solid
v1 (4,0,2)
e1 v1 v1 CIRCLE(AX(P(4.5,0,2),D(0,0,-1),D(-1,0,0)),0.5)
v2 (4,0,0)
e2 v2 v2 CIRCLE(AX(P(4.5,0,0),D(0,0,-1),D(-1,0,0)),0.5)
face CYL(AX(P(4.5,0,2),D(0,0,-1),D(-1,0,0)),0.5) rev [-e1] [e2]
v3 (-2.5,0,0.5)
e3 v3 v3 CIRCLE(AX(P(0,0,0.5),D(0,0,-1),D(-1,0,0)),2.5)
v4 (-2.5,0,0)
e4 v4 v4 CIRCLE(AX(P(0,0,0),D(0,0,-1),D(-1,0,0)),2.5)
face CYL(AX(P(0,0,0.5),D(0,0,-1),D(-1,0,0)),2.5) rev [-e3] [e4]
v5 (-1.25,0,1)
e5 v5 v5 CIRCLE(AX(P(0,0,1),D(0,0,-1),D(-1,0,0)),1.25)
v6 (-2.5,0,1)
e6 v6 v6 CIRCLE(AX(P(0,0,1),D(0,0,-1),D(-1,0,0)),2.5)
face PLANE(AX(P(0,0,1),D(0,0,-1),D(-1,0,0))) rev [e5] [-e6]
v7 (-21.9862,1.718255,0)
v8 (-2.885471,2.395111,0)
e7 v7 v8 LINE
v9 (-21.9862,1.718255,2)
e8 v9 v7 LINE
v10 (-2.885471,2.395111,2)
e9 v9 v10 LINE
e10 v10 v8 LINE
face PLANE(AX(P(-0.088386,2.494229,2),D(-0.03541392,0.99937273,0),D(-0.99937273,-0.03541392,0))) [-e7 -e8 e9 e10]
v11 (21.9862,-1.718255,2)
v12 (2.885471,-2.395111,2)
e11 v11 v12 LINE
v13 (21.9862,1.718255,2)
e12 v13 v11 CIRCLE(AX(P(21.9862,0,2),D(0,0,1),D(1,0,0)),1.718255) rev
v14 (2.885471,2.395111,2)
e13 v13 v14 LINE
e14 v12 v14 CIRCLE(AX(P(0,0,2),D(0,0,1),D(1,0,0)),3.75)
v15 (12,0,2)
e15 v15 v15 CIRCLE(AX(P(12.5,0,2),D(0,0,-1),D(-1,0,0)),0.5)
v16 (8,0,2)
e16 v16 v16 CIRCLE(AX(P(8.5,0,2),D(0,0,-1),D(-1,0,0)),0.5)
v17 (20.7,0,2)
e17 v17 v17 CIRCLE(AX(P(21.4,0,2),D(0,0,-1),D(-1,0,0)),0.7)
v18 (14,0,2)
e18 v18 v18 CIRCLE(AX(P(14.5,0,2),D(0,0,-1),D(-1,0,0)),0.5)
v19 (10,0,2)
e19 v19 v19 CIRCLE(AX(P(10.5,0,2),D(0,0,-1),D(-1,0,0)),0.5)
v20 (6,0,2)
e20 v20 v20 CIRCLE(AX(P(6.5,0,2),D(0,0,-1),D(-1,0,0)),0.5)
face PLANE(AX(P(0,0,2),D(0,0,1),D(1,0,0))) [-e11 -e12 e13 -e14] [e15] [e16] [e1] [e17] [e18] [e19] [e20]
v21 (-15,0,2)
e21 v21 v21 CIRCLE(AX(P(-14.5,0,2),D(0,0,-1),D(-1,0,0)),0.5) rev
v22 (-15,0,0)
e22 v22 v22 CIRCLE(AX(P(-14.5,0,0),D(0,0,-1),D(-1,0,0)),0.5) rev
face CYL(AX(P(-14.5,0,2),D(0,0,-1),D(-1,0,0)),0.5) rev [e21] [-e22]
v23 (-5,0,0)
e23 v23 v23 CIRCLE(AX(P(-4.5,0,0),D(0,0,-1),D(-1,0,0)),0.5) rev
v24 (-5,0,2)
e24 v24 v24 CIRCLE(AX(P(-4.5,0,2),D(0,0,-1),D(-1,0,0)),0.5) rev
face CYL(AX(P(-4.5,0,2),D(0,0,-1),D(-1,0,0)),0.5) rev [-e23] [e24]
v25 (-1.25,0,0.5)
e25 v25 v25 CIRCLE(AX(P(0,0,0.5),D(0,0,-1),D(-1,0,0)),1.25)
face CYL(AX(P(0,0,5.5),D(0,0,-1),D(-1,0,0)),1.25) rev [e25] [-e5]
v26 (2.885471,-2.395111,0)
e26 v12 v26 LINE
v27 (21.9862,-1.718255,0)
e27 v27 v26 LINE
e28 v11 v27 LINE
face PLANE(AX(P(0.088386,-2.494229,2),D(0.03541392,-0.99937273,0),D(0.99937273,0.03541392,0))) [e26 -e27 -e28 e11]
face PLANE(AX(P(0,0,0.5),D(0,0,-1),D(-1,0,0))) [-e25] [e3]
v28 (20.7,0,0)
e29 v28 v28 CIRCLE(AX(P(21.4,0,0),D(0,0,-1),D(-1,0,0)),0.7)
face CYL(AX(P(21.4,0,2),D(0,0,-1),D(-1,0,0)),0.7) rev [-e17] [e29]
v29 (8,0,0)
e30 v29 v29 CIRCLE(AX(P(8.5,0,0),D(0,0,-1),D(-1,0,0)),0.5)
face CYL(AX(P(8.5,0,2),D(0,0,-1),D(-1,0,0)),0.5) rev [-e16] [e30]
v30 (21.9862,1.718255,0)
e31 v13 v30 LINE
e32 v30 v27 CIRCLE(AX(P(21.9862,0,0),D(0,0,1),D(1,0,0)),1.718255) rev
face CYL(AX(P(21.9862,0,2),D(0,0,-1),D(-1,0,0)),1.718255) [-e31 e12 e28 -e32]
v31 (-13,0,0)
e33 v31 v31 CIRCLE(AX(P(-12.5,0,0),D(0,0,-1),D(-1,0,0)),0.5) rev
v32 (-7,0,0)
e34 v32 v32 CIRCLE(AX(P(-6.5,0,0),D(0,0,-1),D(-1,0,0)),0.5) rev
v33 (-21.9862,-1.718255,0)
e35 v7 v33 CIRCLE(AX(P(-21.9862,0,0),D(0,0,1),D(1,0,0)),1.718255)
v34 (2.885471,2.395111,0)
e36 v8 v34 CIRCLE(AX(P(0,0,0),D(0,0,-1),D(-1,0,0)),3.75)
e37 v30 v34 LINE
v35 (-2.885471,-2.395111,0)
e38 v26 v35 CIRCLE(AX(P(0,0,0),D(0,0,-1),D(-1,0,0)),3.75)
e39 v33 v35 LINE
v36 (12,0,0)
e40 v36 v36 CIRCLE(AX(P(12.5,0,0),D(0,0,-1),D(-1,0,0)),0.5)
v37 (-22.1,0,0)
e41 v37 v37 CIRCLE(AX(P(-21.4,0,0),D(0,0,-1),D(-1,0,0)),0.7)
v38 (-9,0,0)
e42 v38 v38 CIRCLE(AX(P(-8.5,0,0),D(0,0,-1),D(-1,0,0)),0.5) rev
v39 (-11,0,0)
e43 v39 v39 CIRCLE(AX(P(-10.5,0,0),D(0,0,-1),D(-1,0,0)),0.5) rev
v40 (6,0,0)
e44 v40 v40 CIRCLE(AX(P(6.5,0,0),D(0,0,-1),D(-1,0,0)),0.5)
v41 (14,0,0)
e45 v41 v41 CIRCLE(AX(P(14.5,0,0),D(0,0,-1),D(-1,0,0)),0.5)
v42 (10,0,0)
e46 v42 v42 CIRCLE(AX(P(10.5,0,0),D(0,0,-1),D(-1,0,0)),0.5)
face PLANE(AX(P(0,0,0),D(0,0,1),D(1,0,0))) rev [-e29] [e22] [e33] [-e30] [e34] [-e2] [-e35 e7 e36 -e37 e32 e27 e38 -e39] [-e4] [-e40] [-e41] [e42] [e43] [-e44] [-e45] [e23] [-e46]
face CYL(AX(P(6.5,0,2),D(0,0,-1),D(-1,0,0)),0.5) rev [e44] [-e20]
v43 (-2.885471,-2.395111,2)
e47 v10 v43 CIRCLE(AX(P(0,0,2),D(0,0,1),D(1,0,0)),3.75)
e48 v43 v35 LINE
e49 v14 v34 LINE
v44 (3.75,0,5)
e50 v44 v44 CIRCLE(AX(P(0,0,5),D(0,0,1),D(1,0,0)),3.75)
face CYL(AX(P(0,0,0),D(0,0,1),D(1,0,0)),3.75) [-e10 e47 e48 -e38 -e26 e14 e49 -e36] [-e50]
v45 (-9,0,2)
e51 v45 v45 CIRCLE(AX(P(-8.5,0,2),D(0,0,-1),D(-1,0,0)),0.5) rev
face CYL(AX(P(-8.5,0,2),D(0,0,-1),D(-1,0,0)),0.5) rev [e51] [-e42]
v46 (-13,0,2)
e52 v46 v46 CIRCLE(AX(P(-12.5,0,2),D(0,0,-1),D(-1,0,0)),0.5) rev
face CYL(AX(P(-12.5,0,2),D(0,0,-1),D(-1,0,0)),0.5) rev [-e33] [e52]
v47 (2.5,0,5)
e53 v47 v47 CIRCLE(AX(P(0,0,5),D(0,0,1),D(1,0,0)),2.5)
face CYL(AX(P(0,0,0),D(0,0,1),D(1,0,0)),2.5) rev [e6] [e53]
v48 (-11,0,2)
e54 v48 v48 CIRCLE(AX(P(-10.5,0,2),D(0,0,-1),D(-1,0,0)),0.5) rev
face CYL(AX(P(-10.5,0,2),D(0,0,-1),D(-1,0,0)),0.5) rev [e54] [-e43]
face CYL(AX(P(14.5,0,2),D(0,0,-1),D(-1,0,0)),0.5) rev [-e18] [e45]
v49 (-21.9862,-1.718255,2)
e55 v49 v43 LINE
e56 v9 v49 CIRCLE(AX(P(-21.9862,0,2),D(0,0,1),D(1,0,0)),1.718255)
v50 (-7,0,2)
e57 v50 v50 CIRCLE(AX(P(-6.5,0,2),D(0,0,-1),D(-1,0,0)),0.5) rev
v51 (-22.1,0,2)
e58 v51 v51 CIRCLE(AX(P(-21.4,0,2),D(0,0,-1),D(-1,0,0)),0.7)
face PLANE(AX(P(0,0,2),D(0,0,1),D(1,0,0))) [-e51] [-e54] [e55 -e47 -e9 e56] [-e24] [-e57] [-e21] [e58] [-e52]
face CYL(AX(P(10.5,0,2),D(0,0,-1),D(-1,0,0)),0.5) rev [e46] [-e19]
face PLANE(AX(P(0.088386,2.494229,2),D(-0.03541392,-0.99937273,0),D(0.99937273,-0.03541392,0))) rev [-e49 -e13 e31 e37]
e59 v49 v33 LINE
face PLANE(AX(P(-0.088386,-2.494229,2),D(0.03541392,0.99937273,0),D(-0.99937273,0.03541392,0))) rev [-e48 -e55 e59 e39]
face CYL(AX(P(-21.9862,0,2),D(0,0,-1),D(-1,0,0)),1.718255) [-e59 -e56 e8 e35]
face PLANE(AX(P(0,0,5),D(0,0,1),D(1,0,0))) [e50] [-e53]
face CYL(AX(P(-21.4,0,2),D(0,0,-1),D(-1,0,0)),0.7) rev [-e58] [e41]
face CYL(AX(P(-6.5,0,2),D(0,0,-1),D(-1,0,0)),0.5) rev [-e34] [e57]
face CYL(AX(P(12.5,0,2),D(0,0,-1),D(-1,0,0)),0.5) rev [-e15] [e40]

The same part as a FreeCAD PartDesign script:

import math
import FreeCAD as App
import Part
import Sketcher

V = App.Vector

doc = App.newDocument("Part")
body = doc.addObject("PartDesign::Body", "Body")

# Sketch on XY plane
sketch1 = doc.addObject("Sketcher::SketchObject", "Sketch")
body.addObject(sketch1)
sketch1.AttachmentSupport = (doc.XY_Plane, [""])
sketch1.MapMode = "FlatFace"
sketch1.addGeometry([
    Part.ArcOfCircle(Part.Circle(V(0, 0, 0), V(0, 0, 1), 3.75), math.radians(180), math.radians(219.694681)),  # 0
    Part.ArcOfCircle(Part.Circle(V(0, 0, 0), V(0, 0, 1), 3.75), math.radians(140.305319), math.radians(180)),  # 1
    Part.LineSegment(V(-2.885471, 2.395111, 0), V(-21.9862, 1.718255, 0)),  # 2
    Part.ArcOfCircle(Part.Circle(V(-21.9862, 0, 0), V(0, 0, 1), 1.718255), math.radians(90), math.radians(270)),  # 3
    Part.LineSegment(V(-21.9862, -1.718255, 0), V(-2.885471, -2.395111, 0)),  # 4
], False)
sketch1.addConstraint([
    Sketcher.Constraint("Tangent", 0, 1, 1, 2),
    Sketcher.Constraint("Coincident", 1, 1, 2, 1),
    Sketcher.Constraint("Coincident", 2, 2, 3, 1),
    Sketcher.Constraint("Coincident", 3, 2, 4, 1),
    Sketcher.Constraint("Coincident", 4, 2, 0, 2),
    Sketcher.Constraint("Coincident", 0, 3, -1, 1),
    Sketcher.Constraint("Equal", 0, 1),
    Sketcher.Constraint("Symmetric", 2, 2, 3, 2, -1),
    Sketcher.Constraint("PointOnObject", 0, 1, -1),
    Sketcher.Constraint("Vertical", 3, 3, 2, 2),
    Sketcher.Constraint("Vertical", 1, 1, 4, 2),
    Sketcher.Constraint("Radius", 0, 3.75),
    Sketcher.Constraint("Radius", 3, 1.718255),
    Sketcher.Constraint("DistanceX", 3, 3, -1, 1, 21.9862),
    Sketcher.Constraint("Distance", 2, 19.112718),
])
pad1 = doc.addObject("PartDesign::Pad", "Pad")
body.addObject(pad1)
pad1.Profile = sketch1
pad1.Length = 2
body2 = doc.addObject("PartDesign::Body", "Body001")

# Sketch on XY plane
sketch2 = doc.addObject("Sketcher::SketchObject", "Sketch001")
body2.addObject(sketch2)
sketch2.AttachmentSupport = (doc.getObject("XY_Plane001"), [""])
sketch2.MapMode = "FlatFace"
sketch2.addGeometry([
    Part.LineSegment(V(21.9862, 1.718255, 0), V(2.885471, 2.395111, 0)),
    Part.ArcOfCircle(Part.Circle(V(0, 0, 0), V(0, 0, 1), 3.75), math.radians(-39.694681), math.radians(39.694681)),
    Part.LineSegment(V(2.885471, -2.395111, 0), V(21.9862, -1.718255, 0)),
    Part.ArcOfCircle(Part.Circle(V(21.9862, 0, 0), V(0, 0, 1), 1.718255), math.radians(-90), math.radians(90)),
], False)
sketch2.addConstraint([
    Sketcher.Constraint("Coincident", 0, 2, 1, 2),
    Sketcher.Constraint("Coincident", 1, 1, 2, 1),
    Sketcher.Constraint("Coincident", 2, 2, 3, 1),
    Sketcher.Constraint("Coincident", 3, 2, 0, 1),
    Sketcher.Constraint("Coincident", 1, 3, -1, 1),
    Sketcher.Constraint("Symmetric", 2, 2, 3, 2, -1),
    Sketcher.Constraint("Vertical", 0, 2, 1, 1),
    Sketcher.Constraint("Vertical", 3, 3, 2, 2),
    Sketcher.Constraint("Radius", 1, 3.75),
    Sketcher.Constraint("Radius", 3, 1.718255),
    Sketcher.Constraint("DistanceX", -1, 1, 3, 3, 21.9862),
    Sketcher.Constraint("Distance", 0, 19.112718),
])
pad2 = doc.addObject("PartDesign::Pad", "Pad001")
body2.addObject(pad2)
pad2.Profile = sketch2
pad2.Length = 2
body3 = doc.addObject("PartDesign::Body", "Body002")

# Sketch on XY plane
sketch3 = doc.addObject("Sketcher::SketchObject", "Sketch002")
body3.addObject(sketch3)
sketch3.AttachmentSupport = (doc.getObject("XY_Plane002"), [""])
sketch3.MapMode = "FlatFace"
sketch3.AttachmentOffset = App.Placement(V(0, 0, 2), App.Rotation())
sketch3.addGeometry([
    Part.Circle(V(0, 0, 0), V(0, 0, 1), 3.75),
    Part.Circle(V(0, 0, 0), V(0, 0, 1), 2.5),
], False)
sketch3.addConstraint([
    Sketcher.Constraint("Coincident", 0, 3, -1, 1),
    Sketcher.Constraint("Coincident", 1, 3, -1, 1),
    Sketcher.Constraint("Diameter", 1, 5.0),
    Sketcher.Constraint("Diameter", 0, 7.5),
])
pad3 = doc.addObject("PartDesign::Pad", "Pad002")
body3.addObject(pad3)
pad3.Profile = sketch3
pad3.Length = 3
body.AllowCompound = True
doc.recompute()

boolean = doc.addObject("PartDesign::Boolean", "Boolean")
body.addObject(boolean)
boolean.Type = "Fuse"
boolean.addObjects([body2])
doc.recompute()

boolean2 = doc.addObject("PartDesign::Boolean", "Boolean001")
body.addObject(boolean2)
boolean2.Type = "Fuse"
boolean2.addObjects([body3])

# Sketch on XY plane
sketch4 = doc.addObject("Sketcher::SketchObject", "Sketch003")
body.addObject(sketch4)
sketch4.AttachmentSupport = (doc.XY_Plane, [""])
sketch4.MapMode = "FlatFace"
sketch4.addGeometry([
    Part.Circle(V(0, 0, 0), V(0, 0, 1), 3.75),
    Part.Circle(V(0, 0, 0), V(0, 0, 1), 2.5),
], False)
sketch4.addConstraint([
    Sketcher.Constraint("Coincident", 0, 3, -1, 1),
    Sketcher.Constraint("Coincident", 1, 3, -1, 1),
    Sketcher.Constraint("Diameter", 1, 5.0),
    Sketcher.Constraint("Diameter", 0, 7.5),
])
pad4 = doc.addObject("PartDesign::Pad", "Pad003")
body.addObject(pad4)
pad4.Profile = sketch4
pad4.Length = 2

# Sketch on XY plane
sketch5 = doc.addObject("Sketcher::SketchObject", "Sketch004")
body.addObject(sketch5)
sketch5.AttachmentSupport = (doc.XY_Plane, [""])
sketch5.MapMode = "FlatFace"
sketch5.addGeometry([
    Part.Circle(V(14.5, 0, 0), V(0, 0, 1), 0.5),  # 0
    Part.Circle(V(4.5, 0, 0), V(0, 0, 1), 0.5),  # 1
    Part.Circle(V(6.5, 0, 0), V(0, 0, 1), 0.5),  # 2
    Part.Circle(V(8.5, 0, 0), V(0, 0, 1), 0.5),  # 3
    Part.Circle(V(10.5, 0, 0), V(0, 0, 1), 0.5),  # 4
    Part.Circle(V(12.5, 0, 0), V(0, 0, 1), 0.5),  # 5
    Part.Circle(V(-4.5, 0, 0), V(0, 0, 1), 0.5),  # 6
    Part.Circle(V(-6.5, 0, 0), V(0, 0, 1), 0.5),  # 7
    Part.Circle(V(-8.5, 0, 0), V(0, 0, 1), 0.5),  # 8
    Part.Circle(V(-10.5, 0, 0), V(0, 0, 1), 0.5),  # 9
    Part.Circle(V(-12.5, 0, 0), V(0, 0, 1), 0.5),  # 10
    Part.Circle(V(-14.5, 0, 0), V(0, 0, 1), 0.5),  # 11
], False)
sketch5.addConstraint([
    Sketcher.Constraint("Equal", 0, 1),
    Sketcher.Constraint("Equal", 1, 2),
    Sketcher.Constraint("Equal", 2, 3),
    Sketcher.Constraint("Equal", 3, 4),
    Sketcher.Constraint("Equal", 4, 5),
    Sketcher.Constraint("Equal", 5, 6),
    Sketcher.Constraint("Equal", 6, 7),
    Sketcher.Constraint("Equal", 7, 8),
    Sketcher.Constraint("Equal", 8, 9),
    Sketcher.Constraint("Equal", 9, 10),
    Sketcher.Constraint("Equal", 10, 11),
    Sketcher.Constraint("Symmetric", 1, 3, 6, 3, -1, 1),
    Sketcher.Constraint("Symmetric", 2, 3, 7, 3, -1, 1),
    Sketcher.Constraint("Symmetric", 3, 3, 8, 3, -1, 1),
    Sketcher.Constraint("Symmetric", 4, 3, 9, 3, -1, 1),
    Sketcher.Constraint("Symmetric", 5, 3, 10, 3, -1, 1),
    Sketcher.Constraint("Symmetric", 0, 3, 11, 3, -1, 1),
    Sketcher.Constraint("PointOnObject", 0, 3, -1),
    Sketcher.Constraint("PointOnObject", 1, 3, -1),
    Sketcher.Constraint("PointOnObject", 2, 3, -1),
    Sketcher.Constraint("PointOnObject", 3, 3, -1),
    Sketcher.Constraint("PointOnObject", 4, 3, -1),
    Sketcher.Constraint("PointOnObject", 5, 3, -1),
    Sketcher.Constraint("Diameter", 0, 1.0),
    Sketcher.Constraint("DistanceX", 1, 3, 0, 3, 10.0),
    Sketcher.Constraint("DistanceX", 1, 3, 2, 3, 2.0),
    Sketcher.Constraint("DistanceX", 2, 3, 3, 3, 2.0),
    Sketcher.Constraint("DistanceX", 3, 3, 4, 3, 2.0),
    Sketcher.Constraint("DistanceX", 5, 3, 0, 3, 2.0),
    Sketcher.Constraint("DistanceX", 6, 3, 1, 3, 9.0),
])
pocket1 = doc.addObject("PartDesign::Pocket", "Pocket")
body.addObject(pocket1)
pocket1.Profile = sketch5
pocket1.Length = 2
pocket1.Reversed = True

# Sketch on XY plane
sketch6 = doc.addObject("Sketcher::SketchObject", "Sketch005")
body.addObject(sketch6)
sketch6.AttachmentSupport = (doc.XY_Plane, [""])
sketch6.MapMode = "FlatFace"
sketch6.addGeometry(Part.Circle(V(0, 0, 0), V(0, 0, 1), 2.5), False)
sketch6.addConstraint([
    Sketcher.Constraint("Coincident", 0, 3, -1, 1),
    Sketcher.Constraint("Diameter", 0, 5.0),
])
pad5 = doc.addObject("PartDesign::Pad", "Pad004")
body.addObject(pad5)
pad5.Profile = sketch6
pad5.Length = 1

# Sketch on XY plane
sketch7 = doc.addObject("Sketcher::SketchObject", "Sketch006")
body.addObject(sketch7)
sketch7.AttachmentSupport = (doc.XY_Plane, [""])
sketch7.MapMode = "FlatFace"
sketch7.addGeometry(Part.Circle(V(0, 0, 0), V(0, 0, 1), 2.5), False)
sketch7.addConstraint([
    Sketcher.Constraint("Coincident", 0, 3, -1, 1),
    Sketcher.Constraint("Diameter", 0, 5.0),
])
pocket2 = doc.addObject("PartDesign::Pocket", "Pocket001")
body.addObject(pocket2)
pocket2.Profile = sketch7
pocket2.Length = 0.5
pocket2.Reversed = True

# Sketch on XY plane
sketch8 = doc.addObject("Sketcher::SketchObject", "Sketch007")
body.addObject(sketch8)
sketch8.AttachmentSupport = (doc.XY_Plane, [""])
sketch8.MapMode = "FlatFace"
sketch8.AttachmentOffset = App.Placement(V(0, 0, 0.5), App.Rotation())
sketch8.addGeometry(Part.Circle(V(0, 0, 0), V(0, 0, 1), 1.25), False)
sketch8.addConstraint([
    Sketcher.Constraint("Coincident", 0, 3, -1, 1),
    Sketcher.Constraint("Diameter", 0, 2.5),
])
pocket3 = doc.addObject("PartDesign::Pocket", "Pocket002")
body.addObject(pocket3)
pocket3.Profile = sketch8
pocket3.Length = 5
pocket3.Reversed = True

# Sketch on XY plane
sketch9 = doc.addObject("Sketcher::SketchObject", "Sketch008")
body.addObject(sketch9)
sketch9.AttachmentSupport = (doc.XY_Plane, [""])
sketch9.MapMode = "FlatFace"
sketch9.addGeometry(Part.Circle(V(-21.4, 0, 0), V(0, 0, 1), 0.7), False)
sketch9.addConstraint([
    Sketcher.Constraint("PointOnObject", 0, 3, -1),
    Sketcher.Constraint("Diameter", 0, 1.4),
    Sketcher.Constraint("DistanceX", 0, 3, -1, 1, 21.4),
])
pocket4 = doc.addObject("PartDesign::Pocket", "Pocket003")
body.addObject(pocket4)
pocket4.Profile = sketch9
pocket4.Length = 2
pocket4.Reversed = True

# Sketch on XY plane
sketch10 = doc.addObject("Sketcher::SketchObject", "Sketch009")
body.addObject(sketch10)
sketch10.AttachmentSupport = (doc.XY_Plane, [""])
sketch10.MapMode = "FlatFace"
sketch10.addGeometry(Part.Circle(V(21.4, 0, 0), V(0, 0, 1), 0.7), False)
sketch10.addConstraint([
    Sketcher.Constraint("PointOnObject", 0, 3, -1),
    Sketcher.Constraint("Diameter", 0, 1.4),
    Sketcher.Constraint("DistanceX", -1, 1, 0, 3, 21.4),
])
pocket5 = doc.addObject("PartDesign::Pocket", "Pocket004")
body.addObject(pocket5)
pocket5.Profile = sketch10
pocket5.Length = 2
pocket5.Reversed = True

doc.recompute()
